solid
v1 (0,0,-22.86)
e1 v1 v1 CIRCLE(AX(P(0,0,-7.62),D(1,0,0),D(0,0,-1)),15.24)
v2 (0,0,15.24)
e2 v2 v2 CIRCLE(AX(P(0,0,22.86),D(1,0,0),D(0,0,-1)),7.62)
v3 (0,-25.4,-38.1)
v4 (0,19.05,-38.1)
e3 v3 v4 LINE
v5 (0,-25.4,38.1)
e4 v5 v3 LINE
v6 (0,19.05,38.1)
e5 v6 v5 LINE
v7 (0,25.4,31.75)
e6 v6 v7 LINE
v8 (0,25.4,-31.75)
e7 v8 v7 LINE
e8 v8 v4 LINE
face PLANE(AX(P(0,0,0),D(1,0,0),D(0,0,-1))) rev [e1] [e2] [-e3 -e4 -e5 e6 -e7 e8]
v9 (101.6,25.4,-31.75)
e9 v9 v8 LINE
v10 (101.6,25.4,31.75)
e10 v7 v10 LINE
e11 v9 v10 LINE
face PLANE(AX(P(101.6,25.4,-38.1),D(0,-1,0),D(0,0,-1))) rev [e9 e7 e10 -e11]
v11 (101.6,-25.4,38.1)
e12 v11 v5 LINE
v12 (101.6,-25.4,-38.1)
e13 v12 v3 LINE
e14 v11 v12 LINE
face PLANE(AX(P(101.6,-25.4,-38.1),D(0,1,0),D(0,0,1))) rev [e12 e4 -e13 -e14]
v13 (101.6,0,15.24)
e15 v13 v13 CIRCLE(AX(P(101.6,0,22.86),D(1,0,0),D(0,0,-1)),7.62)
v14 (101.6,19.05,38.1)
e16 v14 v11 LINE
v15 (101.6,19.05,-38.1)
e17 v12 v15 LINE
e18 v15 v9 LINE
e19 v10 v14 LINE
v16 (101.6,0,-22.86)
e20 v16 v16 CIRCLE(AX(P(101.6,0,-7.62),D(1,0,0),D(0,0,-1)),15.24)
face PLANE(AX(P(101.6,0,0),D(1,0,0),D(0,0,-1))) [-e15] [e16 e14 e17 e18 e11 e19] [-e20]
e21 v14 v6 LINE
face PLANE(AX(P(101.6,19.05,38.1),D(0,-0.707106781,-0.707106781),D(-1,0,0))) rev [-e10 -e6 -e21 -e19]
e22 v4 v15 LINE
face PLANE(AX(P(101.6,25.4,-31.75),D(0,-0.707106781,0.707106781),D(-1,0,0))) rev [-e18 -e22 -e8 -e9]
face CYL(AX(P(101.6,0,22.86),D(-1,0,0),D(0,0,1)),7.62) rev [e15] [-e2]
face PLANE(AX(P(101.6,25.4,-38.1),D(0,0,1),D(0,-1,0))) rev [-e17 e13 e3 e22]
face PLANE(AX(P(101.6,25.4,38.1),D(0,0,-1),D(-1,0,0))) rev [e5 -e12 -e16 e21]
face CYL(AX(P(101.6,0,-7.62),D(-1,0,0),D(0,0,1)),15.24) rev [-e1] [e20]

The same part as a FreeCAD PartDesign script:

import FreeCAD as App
import Part
import Sketcher
Q = App.Units.Quantity


def edges_at(feature, points):
    """Names of the edges that pass closest to the given points."""
    edges = feature.Shape.Edges
    near = lambda p: min(range(len(edges)), key=lambda i: edges[i].distToShape(Part.Vertex(*p))[0])
    return sorted({f"Edge{near(p) + 1}" for p in points})


def add_polygon(sketch, points):
    """Adds a closed chain of lines whose ends are joined by coincident constraints."""
    first, n = sketch.GeometryCount, len(points)
    for a, b in zip(points, points[1:] + points[:1]):
        sketch.addGeometry(Part.LineSegment(App.Vector(*a, 0), App.Vector(*b, 0)), False)
    for i in range(n):
        sketch.addConstraint(Sketcher.Constraint("Coincident", first + i, 2, first + (i + 1) % n, 1))

doc = App.newDocument("Part")
body = doc.addObject("PartDesign::Body", "Body")

sketch1 = body.newObject("Sketcher::SketchObject", "Sketch")
sketch1.AttachmentSupport = (doc.getObject("YZ_Plane"), [""])
sketch1.MapMode = "FlatFace"
add_polygon(sketch1, [(-25, 38), (-25, -38), (25, -38), (25, 38)])
sketch1.addGeometry(Part.Circle(App.Vector(0, -8, 0), App.Vector(0, 0, 1), 15), False)
sketch1.addGeometry(Part.Circle(App.Vector(0, 23, 0), App.Vector(0, 0, 1), 8), False)
sketch1.addConstraint(Sketcher.Constraint("Vertical", 0))
sketch1.addConstraint(Sketcher.Constraint("Horizontal", 1))
sketch1.addConstraint(Sketcher.Constraint("Vertical", 2))
sketch1.addConstraint(Sketcher.Constraint("Horizontal", 3))
sketch1.addConstraint(Sketcher.Constraint("Symmetric", 0, 2, 2, 2, -1, 1))
sketch1.addConstraint(Sketcher.Constraint("PointOnObject", 4, 3, -2))
sketch1.addConstraint(Sketcher.Constraint("PointOnObject", 5, 3, -2))
sketch1.addConstraint(Sketcher.Constraint("Diameter", 4, Q("1.2 in")))
sketch1.addConstraint(Sketcher.Constraint("Diameter", 5, Q("0.6 in")))
sketch1.addConstraint(Sketcher.Constraint("DistanceX", 1, 1, 1, 2, Q("2 in")))
sketch1.addConstraint(Sketcher.Constraint("DistanceY", 0, 2, 0, 1, Q("3 in")))
sketch1.addConstraint(Sketcher.Constraint("DistanceY", 4, 3, -1, 1, Q("0.3 in")))
sketch1.addConstraint(Sketcher.Constraint("DistanceY", -1, 1, 5, 3, Q("0.9 in")))
pad1 = body.newObject("PartDesign::Pad", "Pad")
pad1.Profile = sketch1
pad1.Length = Q("4 in")
doc.recompute()

chamfer = body.newObject("PartDesign::Chamfer", "Chamfer")
chamfer.Base = (pad1, edges_at(pad1, [(50.8, 25.4, 38.1), (50.8, 25.4, -38.1)]))
chamfer.Size = Q("0.25 in")

doc.recompute()
